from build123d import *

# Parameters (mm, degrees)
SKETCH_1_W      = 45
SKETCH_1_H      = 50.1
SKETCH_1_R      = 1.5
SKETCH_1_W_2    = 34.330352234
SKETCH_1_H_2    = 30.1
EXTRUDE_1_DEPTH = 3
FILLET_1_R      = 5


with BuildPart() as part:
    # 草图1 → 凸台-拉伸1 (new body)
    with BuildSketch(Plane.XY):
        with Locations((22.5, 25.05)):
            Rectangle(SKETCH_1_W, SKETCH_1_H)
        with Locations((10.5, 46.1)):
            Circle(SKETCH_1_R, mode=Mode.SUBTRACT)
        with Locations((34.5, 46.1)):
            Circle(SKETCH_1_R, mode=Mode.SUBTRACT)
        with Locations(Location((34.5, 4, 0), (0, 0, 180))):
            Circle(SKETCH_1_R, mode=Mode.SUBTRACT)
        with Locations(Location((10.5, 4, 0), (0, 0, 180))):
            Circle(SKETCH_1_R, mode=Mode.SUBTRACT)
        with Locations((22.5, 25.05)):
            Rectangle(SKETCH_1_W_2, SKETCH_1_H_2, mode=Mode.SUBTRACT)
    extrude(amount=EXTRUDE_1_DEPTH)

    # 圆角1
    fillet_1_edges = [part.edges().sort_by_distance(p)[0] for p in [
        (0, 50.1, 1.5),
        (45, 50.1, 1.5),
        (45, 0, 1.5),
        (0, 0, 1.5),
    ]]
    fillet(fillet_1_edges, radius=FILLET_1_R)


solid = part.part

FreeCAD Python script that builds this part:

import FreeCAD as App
import Part
import Sketcher


def edges_at(feature, points):
    """Names of the edges that pass closest to the given points."""
    edges = feature.Shape.Edges
    near = lambda p: min(range(len(edges)), key=lambda i: edges[i].distToShape(Part.Vertex(*p))[0])
    return sorted({f"Edge{near(p) + 1}" for p in points})


def add_polygon(sketch, points):
    """Adds a closed chain of lines whose ends are joined by coincident constraints."""
    first, n = sketch.GeometryCount, len(points)
    for a, b in zip(points, points[1:] + points[:1]):
        sketch.addGeometry(Part.LineSegment(App.Vector(*a, 0), App.Vector(*b, 0)), False)
    for i in range(n):
        sketch.addConstraint(Sketcher.Constraint("Coincident", first + i, 2, first + (i + 1) % n, 1))

doc = App.newDocument("Part")
body = doc.addObject("PartDesign::Body", "Body")

sketch1 = body.newObject("Sketcher::SketchObject", "Sketch")
sketch1.AttachmentSupport = (doc.getObject("XY_Plane"), [""])
sketch1.MapMode = "FlatFace"
add_polygon(sketch1, [(0, 50.1), (0, 0), (45, 0), (45, 50.1)])
sketch1.addGeometry(Part.Circle(App.Vector(10.5, 4, 0), App.Vector(0, 0, 1), 1.5), False)
sketch1.addGeometry(Part.Circle(App.Vector(34.5, 4, 0), App.Vector(0, 0, 1), 1.5), False)
sketch1.addGeometry(Part.Circle(App.Vector(10.5, 46.1, 0), App.Vector(0, 0, 1), 1.5), False)
add_polygon(sketch1, [(39.665176, 10), (5.334824, 10), (5.334824, 40.1), (39.665176, 40.1)])
sketch1.addGeometry(Part.Circle(App.Vector(34.5, 46.1, 0), App.Vector(0, 0, 1), 1.5), False)
sketch1.addConstraint(Sketcher.Constraint("Vertical", 0))
sketch1.addConstraint(Sketcher.Constraint("Horizontal", 1))
sketch1.addConstraint(Sketcher.Constraint("Vertical", 2))
sketch1.addConstraint(Sketcher.Constraint("Horizontal", 3))
sketch1.addConstraint(Sketcher.Constraint("Horizontal", 7))
sketch1.addConstraint(Sketcher.Constraint("Vertical", 8))
sketch1.addConstraint(Sketcher.Constraint("Horizontal", 9))
sketch1.addConstraint(Sketcher.Constraint("Vertical", 10))
sketch1.addConstraint(Sketcher.Constraint("Coincident", 0, 2, -1, 1))
sketch1.addConstraint(Sketcher.Constraint("Equal", 4, 5))
sketch1.addConstraint(Sketcher.Constraint("Equal", 5, 6))
sketch1.addConstraint(Sketcher.Constraint("Equal", 6, 11))
sketch1.addConstraint(Sketcher.Constraint("Horizontal", 4, 3, 5, 3))
sketch1.addConstraint(Sketcher.Constraint("Horizontal", 6, 3, 11, 3))
sketch1.addConstraint(Sketcher.Constraint("Vertical", 4, 3, 6, 3))
sketch1.addConstraint(Sketcher.Constraint("Vertical", 5, 3, 11, 3))
sketch1.addConstraint(Sketcher.Constraint("Diameter", 4, 3.0))
sketch1.addConstraint(Sketcher.Constraint("DistanceX", 1, 1, 1, 2, 45.0))
sketch1.addConstraint(Sketcher.Constraint("DistanceY", 0, 2, 0, 1, 50.1))
sketch1.addConstraint(Sketcher.Constraint("DistanceY", 8, 1, 8, 2, 30.1))
sketch1.addConstraint(Sketcher.Constraint("DistanceY", -1, 1, 4, 3, 4.0))
sketch1.addConstraint(Sketcher.Constraint("DistanceY", -1, 1, 7, 2, 10.0))
sketch1.addConstraint(Sketcher.Constraint("DistanceX", 4, 3, 5, 3, 24.0))
sketch1.addConstraint(Sketcher.Constraint("DistanceY", 11, 3, 2, 2, 4.0))
sketch1.addConstraint(Sketcher.Constraint("DistanceX", -1, 1, 4, 3, 10.5))
sketch1.addConstraint(Sketcher.Constraint("DistanceX", 7, 2, 7, 1, 34.330352))
sketch1.addConstraint(Sketcher.Constraint("DistanceX", -1, 1, 7, 2, 5.334824))
pad1 = body.newObject("PartDesign::Pad", "Pad")
pad1.Profile = sketch1
pad1.Length = 3
doc.recompute()

fillet = body.newObject("PartDesign::Fillet", "Fillet")
fillet.Base = (pad1, edges_at(pad1, [
    (0, 50.1, 1.5),
    (45, 50.1, 1.5),
    (45, 0, 1.5),
    (0, 0, 1.5),
]))
fillet.Radius = 5

doc.recompute()
